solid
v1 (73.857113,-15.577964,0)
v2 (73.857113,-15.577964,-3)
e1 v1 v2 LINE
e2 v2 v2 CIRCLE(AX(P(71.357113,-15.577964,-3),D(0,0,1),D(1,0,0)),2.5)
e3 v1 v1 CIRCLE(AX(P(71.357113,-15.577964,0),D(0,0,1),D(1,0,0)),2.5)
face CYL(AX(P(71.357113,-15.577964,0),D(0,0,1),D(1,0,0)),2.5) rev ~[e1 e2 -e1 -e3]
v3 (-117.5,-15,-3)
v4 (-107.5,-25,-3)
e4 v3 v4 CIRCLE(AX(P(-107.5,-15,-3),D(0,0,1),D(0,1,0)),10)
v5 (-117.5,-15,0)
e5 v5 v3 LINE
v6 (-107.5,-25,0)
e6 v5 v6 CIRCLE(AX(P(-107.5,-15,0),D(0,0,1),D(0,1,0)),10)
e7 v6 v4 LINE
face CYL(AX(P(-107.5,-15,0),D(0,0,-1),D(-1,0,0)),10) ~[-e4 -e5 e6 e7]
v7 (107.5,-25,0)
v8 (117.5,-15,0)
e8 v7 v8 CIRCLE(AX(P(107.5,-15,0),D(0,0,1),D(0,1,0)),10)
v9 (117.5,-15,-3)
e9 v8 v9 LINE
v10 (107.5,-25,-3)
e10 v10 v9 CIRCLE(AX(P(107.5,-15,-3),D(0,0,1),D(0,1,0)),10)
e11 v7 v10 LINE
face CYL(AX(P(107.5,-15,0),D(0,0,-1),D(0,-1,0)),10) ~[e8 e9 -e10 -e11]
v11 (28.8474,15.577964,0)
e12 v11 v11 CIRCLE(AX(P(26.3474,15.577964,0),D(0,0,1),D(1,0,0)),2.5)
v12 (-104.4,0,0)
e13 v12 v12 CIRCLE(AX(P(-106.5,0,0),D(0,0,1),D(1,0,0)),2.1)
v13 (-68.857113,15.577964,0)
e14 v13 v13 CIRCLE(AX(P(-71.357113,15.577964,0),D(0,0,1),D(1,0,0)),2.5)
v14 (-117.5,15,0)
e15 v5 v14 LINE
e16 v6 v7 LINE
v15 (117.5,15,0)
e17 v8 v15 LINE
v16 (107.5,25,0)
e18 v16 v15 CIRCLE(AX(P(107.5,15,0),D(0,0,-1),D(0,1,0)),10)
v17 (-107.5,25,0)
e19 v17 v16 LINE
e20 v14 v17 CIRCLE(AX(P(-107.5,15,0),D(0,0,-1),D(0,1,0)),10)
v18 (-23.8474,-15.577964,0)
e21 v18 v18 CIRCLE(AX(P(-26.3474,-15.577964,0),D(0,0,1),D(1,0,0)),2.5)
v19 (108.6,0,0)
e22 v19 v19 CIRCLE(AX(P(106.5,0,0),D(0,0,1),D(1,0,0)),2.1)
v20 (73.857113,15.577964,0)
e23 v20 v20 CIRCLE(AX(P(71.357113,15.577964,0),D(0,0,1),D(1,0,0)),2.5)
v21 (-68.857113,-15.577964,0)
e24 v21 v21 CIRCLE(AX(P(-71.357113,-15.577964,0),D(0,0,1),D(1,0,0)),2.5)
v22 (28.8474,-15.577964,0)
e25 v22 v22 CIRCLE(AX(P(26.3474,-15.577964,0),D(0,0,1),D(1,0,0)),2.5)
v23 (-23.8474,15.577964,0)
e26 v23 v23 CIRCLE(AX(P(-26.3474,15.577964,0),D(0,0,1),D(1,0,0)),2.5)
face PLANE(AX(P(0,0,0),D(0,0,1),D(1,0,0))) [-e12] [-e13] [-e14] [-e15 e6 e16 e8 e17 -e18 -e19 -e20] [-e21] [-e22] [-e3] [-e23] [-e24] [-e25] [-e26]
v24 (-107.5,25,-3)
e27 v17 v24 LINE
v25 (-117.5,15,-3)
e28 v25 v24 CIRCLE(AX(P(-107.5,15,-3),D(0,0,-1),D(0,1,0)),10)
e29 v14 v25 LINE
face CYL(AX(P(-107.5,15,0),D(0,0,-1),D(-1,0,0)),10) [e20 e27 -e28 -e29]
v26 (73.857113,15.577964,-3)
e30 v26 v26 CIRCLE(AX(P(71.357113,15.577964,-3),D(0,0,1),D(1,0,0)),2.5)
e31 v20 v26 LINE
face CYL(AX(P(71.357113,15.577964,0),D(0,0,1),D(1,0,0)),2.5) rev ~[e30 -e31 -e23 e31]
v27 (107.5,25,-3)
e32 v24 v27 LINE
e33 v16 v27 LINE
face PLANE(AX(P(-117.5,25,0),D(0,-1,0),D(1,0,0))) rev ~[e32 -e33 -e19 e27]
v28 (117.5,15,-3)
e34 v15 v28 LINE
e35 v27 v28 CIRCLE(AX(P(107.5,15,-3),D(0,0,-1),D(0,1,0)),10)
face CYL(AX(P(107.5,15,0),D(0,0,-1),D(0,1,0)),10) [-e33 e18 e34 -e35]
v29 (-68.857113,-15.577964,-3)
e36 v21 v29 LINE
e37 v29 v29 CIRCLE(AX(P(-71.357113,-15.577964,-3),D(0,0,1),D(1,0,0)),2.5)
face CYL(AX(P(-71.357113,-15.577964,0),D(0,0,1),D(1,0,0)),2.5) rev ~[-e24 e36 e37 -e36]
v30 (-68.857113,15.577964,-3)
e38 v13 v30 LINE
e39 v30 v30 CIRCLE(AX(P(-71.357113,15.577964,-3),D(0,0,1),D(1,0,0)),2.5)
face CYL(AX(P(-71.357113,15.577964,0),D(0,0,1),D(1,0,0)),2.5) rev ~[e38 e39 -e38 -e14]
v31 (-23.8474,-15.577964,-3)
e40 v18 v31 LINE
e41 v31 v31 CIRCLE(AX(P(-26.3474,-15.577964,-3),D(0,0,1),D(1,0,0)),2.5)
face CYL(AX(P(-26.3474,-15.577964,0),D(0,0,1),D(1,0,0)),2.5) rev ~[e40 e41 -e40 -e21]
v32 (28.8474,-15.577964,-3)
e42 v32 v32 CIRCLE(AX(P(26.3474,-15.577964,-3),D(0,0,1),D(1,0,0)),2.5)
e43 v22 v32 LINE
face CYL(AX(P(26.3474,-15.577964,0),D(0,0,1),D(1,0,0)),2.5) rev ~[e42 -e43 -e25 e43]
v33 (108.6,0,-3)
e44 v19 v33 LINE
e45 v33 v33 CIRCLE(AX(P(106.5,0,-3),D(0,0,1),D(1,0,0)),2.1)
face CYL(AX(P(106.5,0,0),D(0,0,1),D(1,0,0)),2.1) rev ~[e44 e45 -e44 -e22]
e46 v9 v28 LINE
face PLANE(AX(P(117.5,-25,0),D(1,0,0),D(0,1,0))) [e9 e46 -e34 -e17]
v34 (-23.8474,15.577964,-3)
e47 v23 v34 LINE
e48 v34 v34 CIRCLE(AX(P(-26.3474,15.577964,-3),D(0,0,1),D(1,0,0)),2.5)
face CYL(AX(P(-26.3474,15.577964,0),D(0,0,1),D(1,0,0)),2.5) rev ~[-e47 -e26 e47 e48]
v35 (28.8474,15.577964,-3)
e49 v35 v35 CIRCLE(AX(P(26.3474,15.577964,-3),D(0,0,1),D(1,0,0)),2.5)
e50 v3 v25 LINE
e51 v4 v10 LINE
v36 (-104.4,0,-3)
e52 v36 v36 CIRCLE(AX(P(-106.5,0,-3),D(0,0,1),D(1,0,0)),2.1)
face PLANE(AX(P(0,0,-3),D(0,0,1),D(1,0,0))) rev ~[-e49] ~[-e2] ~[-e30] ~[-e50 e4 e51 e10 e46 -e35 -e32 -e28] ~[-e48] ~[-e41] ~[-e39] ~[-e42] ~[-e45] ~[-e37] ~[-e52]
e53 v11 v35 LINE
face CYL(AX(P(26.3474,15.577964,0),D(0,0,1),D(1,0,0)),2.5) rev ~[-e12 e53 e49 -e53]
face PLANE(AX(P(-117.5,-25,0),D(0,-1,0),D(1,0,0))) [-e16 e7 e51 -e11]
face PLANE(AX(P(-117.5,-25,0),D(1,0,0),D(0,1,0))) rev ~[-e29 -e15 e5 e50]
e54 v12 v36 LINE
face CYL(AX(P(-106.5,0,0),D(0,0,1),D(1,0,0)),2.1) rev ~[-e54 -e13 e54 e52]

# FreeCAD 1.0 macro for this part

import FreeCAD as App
import Part
import Sketcher
from FreeCAD import Vector
Q = App.Units.Quantity


def edges_at(feature, points):
    """Names of the edges that pass closest to the given points."""
    edges = feature.Shape.Edges
    near = lambda p: min(range(len(edges)), key=lambda i: edges[i].distToShape(Part.Vertex(*p))[0])
    return sorted({f"Edge{near(p) + 1}" for p in points})

doc = App.newDocument("Part")
body = doc.addObject("PartDesign::Body", "Body")

# Sketch on XY plane
sketch1 = body.newObject("Sketcher::SketchObject", "Sketch")
sketch1.AttachmentSupport = (doc.getObject("XY_Plane"), [""])
sketch1.MapMode = "FlatFace"
sketch1.addGeometry([
    Part.LineSegment(Vector(-117.5, 25, 0), Vector(-117.5, -25, 0)),  # 0
    Part.LineSegment(Vector(-117.5, -25, 0), Vector(117.5, -25, 0)),  # 1
    Part.LineSegment(Vector(117.5, -25, 0), Vector(117.5, 25, 0)),  # 2
    Part.LineSegment(Vector(117.5, 25, 0), Vector(-117.5, 25, 0)),  # 3
    Part.Circle(Vector(-106.5, 0, 0), Vector(0, 0, 1), 2.1),  # 4
    Part.Circle(Vector(106.5, 0, 0), Vector(0, 0, 1), 2.1),  # 5
], False)
sketch1.addConstraint([
    Sketcher.Constraint("Coincident", 0, 2, 1, 1),
    Sketcher.Constraint("Coincident", 1, 2, 2, 1),
    Sketcher.Constraint("Coincident", 2, 2, 3, 1),
    Sketcher.Constraint("Coincident", 3, 2, 0, 1),
    Sketcher.Constraint("Vertical", 0),
    Sketcher.Constraint("Horizontal", 1),
    Sketcher.Constraint("Vertical", 2),
    Sketcher.Constraint("Horizontal", 3),
    Sketcher.Constraint("Equal", 4, 5),
    Sketcher.Constraint("Symmetric", 4, 3, 5, 3, -1, 1),
    Sketcher.Constraint("Symmetric", 0, 2, 2, 2, -1, 1),
    Sketcher.Constraint("PointOnObject", 4, 3, -1),
    Sketcher.Constraint("Diameter", 4, Q("4.2 mm")),
    Sketcher.Constraint("DistanceX", 1, 1, 1, 2, Q("235 mm")),
    Sketcher.Constraint("DistanceY", 0, 2, 0, 1, Q("50 mm")),
    Sketcher.Constraint("DistanceX", 4, 3, 5, 3, Q("213 mm")),
])
pad1 = body.newObject("PartDesign::Pad", "Pad")
pad1.Profile = sketch1
pad1.Length = 3
pad1.Reversed = True
doc.recompute()

fillet = body.newObject("PartDesign::Fillet", "Fillet")
fillet.Base = (pad1, edges_at(pad1, [
    (117.5, 25, -1.5),
    (117.5, -25, -1.5),
    (-117.5, -25, -1.5),
    (-117.5, 25, -1.5),
]))
fillet.Radius = 10

# Sketch on XY plane
sketch2 = body.newObject("Sketcher::SketchObject", "Sketch001")
sketch2.AttachmentSupport = (doc.getObject("XY_Plane"), [""])
sketch2.MapMode = "FlatFace"
sketch2.addGeometry([
    Part.Circle(Vector(-71.4, 15.6, 0), Vector(0, 0, 1), 2.5),  # 0
    Part.Circle(Vector(-26.3, 15.6, 0), Vector(0, 0, 1), 2.5),  # 1
    Part.Circle(Vector(71.4, 15.6, 0), Vector(0, 0, 1), 2.5),  # 2
    Part.Circle(Vector(26.3, 15.6, 0), Vector(0, 0, 1), 2.5),  # 3
    Part.Circle(Vector(71.4, -15.6, 0), Vector(0, 0, 1), 2.5),  # 4
    Part.Circle(Vector(-26.3, -15.6, 0), Vector(0, 0, 1), 2.5),  # 5
    Part.Circle(Vector(-71.4, -15.6, 0), Vector(0, 0, 1), 2.5),  # 6
    Part.Circle(Vector(26.3, -15.6, 0), Vector(0, 0, 1), 2.5),  # 7
], False)
sketch2.addConstraint([
    Sketcher.Constraint("Equal", 0, 1),
    Sketcher.Constraint("Equal", 1, 2),
    Sketcher.Constraint("Equal", 2, 3),
    Sketcher.Constraint("Equal", 3, 4),
    Sketcher.Constraint("Equal", 4, 5),
    Sketcher.Constraint("Equal", 5, 6),
    Sketcher.Constraint("Equal", 6, 7),
    Sketcher.Constraint("Symmetric", 0, 3, 4, 3, -1, 1),
    Sketcher.Constraint("Symmetric", 3, 3, 5, 3, -1, 1),
    Sketcher.Constraint("Symmetric", 2, 3, 6, 3, -1, 1),
    Sketcher.Constraint("Symmetric", 1, 3, 7, 3, -1, 1),
    Sketcher.Constraint("Symmetric", 0, 3, 2, 3, -2),
    Sketcher.Constraint("Symmetric", 1, 3, 3, 3, -2),
    Sketcher.Constraint("Horizontal", 0, 3, 1, 3),
    Sketcher.Constraint("Diameter", 0, Q("5 mm")),
    Sketcher.Constraint("DistanceX", 1, 3, -1, 1, Q("26.3474 mm")),
    Sketcher.Constraint("DistanceX", 0, 3, -1, 1, Q("71.357113 mm")),
    Sketcher.Constraint("DistanceY", -1, 1, 0, 3, Q("15.577964 mm")),
])
pocket1 = body.newObject("PartDesign::Pocket", "Pocket")
pocket1.Profile = sketch2
pocket1.Type = "ThroughAll"

doc.recompute()
